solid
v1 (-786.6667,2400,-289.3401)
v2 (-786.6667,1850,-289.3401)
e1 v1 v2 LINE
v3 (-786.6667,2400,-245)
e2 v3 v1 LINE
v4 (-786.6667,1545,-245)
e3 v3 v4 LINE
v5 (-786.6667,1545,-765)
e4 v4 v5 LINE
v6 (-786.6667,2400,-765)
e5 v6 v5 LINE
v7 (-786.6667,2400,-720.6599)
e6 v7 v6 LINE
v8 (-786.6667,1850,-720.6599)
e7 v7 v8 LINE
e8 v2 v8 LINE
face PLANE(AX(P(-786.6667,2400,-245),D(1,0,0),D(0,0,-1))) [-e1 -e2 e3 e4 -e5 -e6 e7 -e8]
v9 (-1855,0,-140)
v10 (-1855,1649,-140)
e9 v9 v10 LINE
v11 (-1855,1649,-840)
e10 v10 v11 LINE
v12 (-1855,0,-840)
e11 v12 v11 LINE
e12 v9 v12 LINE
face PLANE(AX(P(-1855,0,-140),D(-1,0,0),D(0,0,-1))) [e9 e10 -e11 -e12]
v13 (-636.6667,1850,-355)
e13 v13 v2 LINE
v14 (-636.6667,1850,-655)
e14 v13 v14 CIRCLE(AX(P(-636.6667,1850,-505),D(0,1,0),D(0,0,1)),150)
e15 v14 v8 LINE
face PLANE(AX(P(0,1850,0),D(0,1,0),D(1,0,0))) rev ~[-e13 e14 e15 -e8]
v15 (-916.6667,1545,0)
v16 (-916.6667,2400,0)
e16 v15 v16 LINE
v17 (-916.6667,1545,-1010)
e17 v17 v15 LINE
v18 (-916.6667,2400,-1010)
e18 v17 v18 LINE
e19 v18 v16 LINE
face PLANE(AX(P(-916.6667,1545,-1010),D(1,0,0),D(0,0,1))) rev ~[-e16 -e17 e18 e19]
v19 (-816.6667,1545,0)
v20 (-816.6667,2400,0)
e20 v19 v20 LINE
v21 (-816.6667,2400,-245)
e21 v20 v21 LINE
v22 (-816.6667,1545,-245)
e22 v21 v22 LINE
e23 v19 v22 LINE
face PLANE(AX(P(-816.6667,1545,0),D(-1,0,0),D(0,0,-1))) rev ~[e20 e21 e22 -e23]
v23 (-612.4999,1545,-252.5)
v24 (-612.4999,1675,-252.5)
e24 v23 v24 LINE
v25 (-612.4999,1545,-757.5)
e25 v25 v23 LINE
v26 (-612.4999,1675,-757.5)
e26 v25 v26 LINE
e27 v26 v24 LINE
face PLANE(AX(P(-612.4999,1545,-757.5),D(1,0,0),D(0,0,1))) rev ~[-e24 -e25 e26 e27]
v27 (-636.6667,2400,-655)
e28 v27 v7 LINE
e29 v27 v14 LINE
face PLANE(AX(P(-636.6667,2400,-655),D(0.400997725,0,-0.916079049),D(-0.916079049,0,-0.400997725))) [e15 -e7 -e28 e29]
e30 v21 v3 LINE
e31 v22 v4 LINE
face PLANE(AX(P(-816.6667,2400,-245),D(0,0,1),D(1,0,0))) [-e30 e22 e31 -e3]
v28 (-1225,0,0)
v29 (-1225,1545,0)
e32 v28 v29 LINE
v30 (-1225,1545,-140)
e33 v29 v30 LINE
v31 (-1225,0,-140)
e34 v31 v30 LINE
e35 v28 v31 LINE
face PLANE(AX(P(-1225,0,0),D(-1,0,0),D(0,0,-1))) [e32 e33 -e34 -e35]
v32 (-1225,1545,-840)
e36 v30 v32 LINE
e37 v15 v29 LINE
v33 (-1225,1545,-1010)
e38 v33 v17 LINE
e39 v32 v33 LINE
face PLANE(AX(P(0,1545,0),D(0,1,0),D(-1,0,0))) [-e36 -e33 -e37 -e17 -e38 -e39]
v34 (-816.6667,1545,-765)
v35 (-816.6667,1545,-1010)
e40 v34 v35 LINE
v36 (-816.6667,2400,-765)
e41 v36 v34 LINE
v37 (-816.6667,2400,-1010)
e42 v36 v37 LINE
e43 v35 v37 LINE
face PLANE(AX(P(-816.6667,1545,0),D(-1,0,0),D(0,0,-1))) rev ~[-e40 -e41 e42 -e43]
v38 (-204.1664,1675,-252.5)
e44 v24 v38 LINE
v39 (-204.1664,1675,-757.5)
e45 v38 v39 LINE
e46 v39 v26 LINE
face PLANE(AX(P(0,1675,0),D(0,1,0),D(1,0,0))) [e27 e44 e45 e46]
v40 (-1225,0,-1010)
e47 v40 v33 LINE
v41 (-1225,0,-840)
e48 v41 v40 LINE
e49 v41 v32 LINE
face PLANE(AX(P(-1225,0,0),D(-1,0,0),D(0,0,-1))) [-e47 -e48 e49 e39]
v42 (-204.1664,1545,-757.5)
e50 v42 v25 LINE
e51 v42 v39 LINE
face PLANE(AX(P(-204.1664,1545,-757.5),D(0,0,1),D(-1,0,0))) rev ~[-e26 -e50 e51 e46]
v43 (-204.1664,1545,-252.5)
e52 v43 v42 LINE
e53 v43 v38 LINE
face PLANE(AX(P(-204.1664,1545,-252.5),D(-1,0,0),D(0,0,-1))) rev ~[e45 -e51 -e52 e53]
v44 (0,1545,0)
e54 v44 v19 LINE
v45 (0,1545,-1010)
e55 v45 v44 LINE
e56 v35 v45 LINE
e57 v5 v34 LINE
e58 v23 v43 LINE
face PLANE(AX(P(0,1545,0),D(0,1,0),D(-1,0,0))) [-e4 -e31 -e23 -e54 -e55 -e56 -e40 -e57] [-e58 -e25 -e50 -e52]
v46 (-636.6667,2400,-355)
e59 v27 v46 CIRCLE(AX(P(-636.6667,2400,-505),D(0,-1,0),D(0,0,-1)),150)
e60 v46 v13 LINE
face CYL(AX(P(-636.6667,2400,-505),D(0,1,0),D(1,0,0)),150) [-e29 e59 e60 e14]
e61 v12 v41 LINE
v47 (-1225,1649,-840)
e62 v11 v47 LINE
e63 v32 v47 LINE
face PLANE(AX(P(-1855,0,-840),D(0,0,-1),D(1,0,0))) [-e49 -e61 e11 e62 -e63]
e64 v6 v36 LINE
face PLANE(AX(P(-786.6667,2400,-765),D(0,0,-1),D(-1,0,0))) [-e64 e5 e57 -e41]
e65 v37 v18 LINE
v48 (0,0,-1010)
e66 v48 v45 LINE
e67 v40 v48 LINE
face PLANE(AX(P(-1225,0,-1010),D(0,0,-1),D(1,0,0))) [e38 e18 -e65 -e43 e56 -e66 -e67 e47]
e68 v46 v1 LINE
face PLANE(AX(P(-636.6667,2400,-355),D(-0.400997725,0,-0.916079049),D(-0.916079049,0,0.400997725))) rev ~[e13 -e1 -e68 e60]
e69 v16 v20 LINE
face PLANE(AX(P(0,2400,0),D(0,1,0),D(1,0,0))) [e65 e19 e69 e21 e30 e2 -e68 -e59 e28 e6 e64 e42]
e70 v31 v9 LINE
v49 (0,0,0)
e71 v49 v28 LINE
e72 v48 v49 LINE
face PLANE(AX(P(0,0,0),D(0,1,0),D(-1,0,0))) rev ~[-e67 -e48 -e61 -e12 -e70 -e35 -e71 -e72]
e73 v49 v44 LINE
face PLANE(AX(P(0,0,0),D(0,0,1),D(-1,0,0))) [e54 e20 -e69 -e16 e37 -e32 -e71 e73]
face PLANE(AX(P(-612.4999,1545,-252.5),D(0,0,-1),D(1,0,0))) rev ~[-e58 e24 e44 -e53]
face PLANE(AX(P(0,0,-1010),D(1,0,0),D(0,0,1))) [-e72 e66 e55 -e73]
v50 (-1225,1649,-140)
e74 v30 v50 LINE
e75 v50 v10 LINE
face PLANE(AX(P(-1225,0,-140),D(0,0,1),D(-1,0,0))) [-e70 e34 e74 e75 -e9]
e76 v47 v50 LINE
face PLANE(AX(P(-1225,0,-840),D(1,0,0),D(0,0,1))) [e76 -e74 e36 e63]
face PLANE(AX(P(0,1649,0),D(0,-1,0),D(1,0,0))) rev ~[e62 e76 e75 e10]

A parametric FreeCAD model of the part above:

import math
import FreeCAD as App
import Part
import Sketcher
Q = App.Units.Quantity

doc = App.newDocument("Part")
body = doc.addObject("PartDesign::Body", "Body")

sketch1 = body.newObject("Sketcher::SketchObject", "Sketch")
sketch1.AttachmentSupport = (doc.getObject("XZ_Plane"), [""])
sketch1.MapMode = "FlatFace"
sketch1.addGeometry(Part.LineSegment(App.Vector(-1225, 0, 0), App.Vector(0, 0, 0)), False)
sketch1.addGeometry(Part.LineSegment(App.Vector(0, 0, 0), App.Vector(0, -1010, 0)), False)
sketch1.addGeometry(Part.LineSegment(App.Vector(0, -1010, 0), App.Vector(-1225, -1010, 0)), False)
sketch1.addGeometry(Part.LineSegment(App.Vector(-1225, -1010, 0), App.Vector(-1225, 0, 0)), False)
sketch1.addConstraint(Sketcher.Constraint("Coincident", 0, 2, 1, 1))
sketch1.addConstraint(Sketcher.Constraint("Coincident", 1, 2, 2, 1))
sketch1.addConstraint(Sketcher.Constraint("Coincident", 2, 2, 3, 1))
sketch1.addConstraint(Sketcher.Constraint("Coincident", 3, 2, 0, 1))
sketch1.addConstraint(Sketcher.Constraint("Horizontal", 0))
sketch1.addConstraint(Sketcher.Constraint("Vertical", 1))
sketch1.addConstraint(Sketcher.Constraint("Horizontal", 2))
sketch1.addConstraint(Sketcher.Constraint("Vertical", 3))
sketch1.addConstraint(Sketcher.Constraint("Coincident", 0, 2, -1, 1))
sketch1.addConstraint(Sketcher.Constraint("DistanceX", 0, 1, 0, 2, Q("1225 mm")))
sketch1.addConstraint(Sketcher.Constraint("DistanceY", 1, 2, 1, 1, Q("1010 mm")))
pad1 = body.newObject("PartDesign::Pad", "Pad")
pad1.Profile = sketch1
pad1.Length = 1545
pad1.Reversed = True

sketch2 = body.newObject("Sketcher::SketchObject", "Sketch001")
sketch2.AttachmentSupport = (doc.getObject("XZ_Plane"), [""])
sketch2.MapMode = "FlatFace"
sketch2.addGeometry(Part.LineSegment(App.Vector(-1225, -840, 0), App.Vector(-1225, -140, 0)), False)
sketch2.addGeometry(Part.LineSegment(App.Vector(-1225, -140, 0), App.Vector(-1855, -140, 0)), False)
sketch2.addGeometry(Part.LineSegment(App.Vector(-1855, -140, 0), App.Vector(-1855, -840, 0)), False)
sketch2.addGeometry(Part.LineSegment(App.Vector(-1855, -840, 0), App.Vector(-1225, -840, 0)), False)
sketch2.addConstraint(Sketcher.Constraint("Coincident", 0, 2, 1, 1))
sketch2.addConstraint(Sketcher.Constraint("Coincident", 1, 2, 2, 1))
sketch2.addConstraint(Sketcher.Constraint("Coincident", 2, 2, 3, 1))
sketch2.addConstraint(Sketcher.Constraint("Coincident", 3, 2, 0, 1))
sketch2.addConstraint(Sketcher.Constraint("Vertical", 0))
sketch2.addConstraint(Sketcher.Constraint("Horizontal", 1))
sketch2.addConstraint(Sketcher.Constraint("Vertical", 2))
sketch2.addConstraint(Sketcher.Constraint("Horizontal", 3))
sketch2.addConstraint(Sketcher.Constraint("DistanceX", 1, 2, 1, 1, Q("630 mm")))
sketch2.addConstraint(Sketcher.Constraint("DistanceY", 0, 1, 0, 2, Q("700 mm")))
sketch2.addConstraint(Sketcher.Constraint("DistanceY", 0, 2, -1, 1, Q("140 mm")))
sketch2.addConstraint(Sketcher.Constraint("DistanceX", 0, 2, -1, 1, Q("1225 mm")))
pad2 = body.newObject("PartDesign::Pad", "Pad001")
pad2.Profile = sketch2
pad2.Length = 1649
pad2.Reversed = True

sketch3 = body.newObject("Sketcher::SketchObject", "Sketch002")
sketch3.AttachmentSupport = (doc.getObject("XZ_Plane"), [""])
sketch3.MapMode = "FlatFace"
sketch3.AttachmentOffset = App.Placement(App.Vector(0, 0, -1545), App.Rotation())
sketch3.addGeometry(Part.LineSegment(App.Vector(-917, -1010, 0), App.Vector(-917, 0, 0)), False)
sketch3.addGeometry(Part.LineSegment(App.Vector(-917, 0, 0), App.Vector(-817, 0, 0)), False)
sketch3.addGeometry(Part.LineSegment(App.Vector(-817, 0, 0), App.Vector(-817, -1010, 0)), False)
sketch3.addGeometry(Part.LineSegment(App.Vector(-817, -1010, 0), App.Vector(-917, -1010, 0)), False)
sketch3.addConstraint(Sketcher.Constraint("Coincident", 0, 2, 1, 1))
sketch3.addConstraint(Sketcher.Constraint("Coincident", 1, 2, 2, 1))
sketch3.addConstraint(Sketcher.Constraint("Coincident", 2, 2, 3, 1))
sketch3.addConstraint(Sketcher.Constraint("Coincident", 3, 2, 0, 1))
sketch3.addConstraint(Sketcher.Constraint("Vertical", 0))
sketch3.addConstraint(Sketcher.Constraint("Horizontal", 1))
sketch3.addConstraint(Sketcher.Constraint("Vertical", 2))
sketch3.addConstraint(Sketcher.Constraint("Horizontal", 3))
sketch3.addConstraint(Sketcher.Constraint("PointOnObject", 0, 2, -1))
sketch3.addConstraint(Sketcher.Constraint("DistanceX", 1, 1, 1, 2, Q("100 mm")))
sketch3.addConstraint(Sketcher.Constraint("DistanceY", 0, 1, 0, 2, Q("1010 mm")))
sketch3.addConstraint(Sketcher.Constraint("DistanceX", 0, 2, -1, 1, Q("916.6667 mm")))
pad3 = body.newObject("PartDesign::Pad", "Pad002")
pad3.Profile = sketch3
pad3.Length = 855
pad3.Reversed = True

sketch4 = body.newObject("Sketcher::SketchObject", "Sketch003")
sketch4.AttachmentSupport = (doc.getObject("XZ_Plane"), [""])
sketch4.MapMode = "FlatFace"
sketch4.AttachmentOffset = App.Placement(App.Vector(0, 0, -2400), App.Rotation())
sketch4.addGeometry(Part.LineSegment(App.Vector(-817, -765, 0), App.Vector(-817, -245, 0)), False)
sketch4.addGeometry(Part.LineSegment(App.Vector(-817, -245, 0), App.Vector(-787, -245, 0)), False)
sketch4.addGeometry(Part.LineSegment(App.Vector(-787, -245, 0), App.Vector(-787, -765, 0)), False)
sketch4.addGeometry(Part.LineSegment(App.Vector(-787, -765, 0), App.Vector(-817, -765, 0)), False)
sketch4.addConstraint(Sketcher.Constraint("Coincident", 0, 2, 1, 1))
sketch4.addConstraint(Sketcher.Constraint("Coincident", 1, 2, 2, 1))
sketch4.addConstraint(Sketcher.Constraint("Coincident", 2, 2, 3, 1))
sketch4.addConstraint(Sketcher.Constraint("Coincident", 3, 2, 0, 1))
sketch4.addConstraint(Sketcher.Constraint("Vertical", 0))
sketch4.addConstraint(Sketcher.Constraint("Horizontal", 1))
sketch4.addConstraint(Sketcher.Constraint("Vertical", 2))
sketch4.addConstraint(Sketcher.Constraint("Horizontal", 3))
sketch4.addConstraint(Sketcher.Constraint("DistanceX", 1, 1, 1, 2, Q("30 mm")))
sketch4.addConstraint(Sketcher.Constraint("DistanceY", 0, 1, 0, 2, Q("520 mm")))
sketch4.addConstraint(Sketcher.Constraint("DistanceY", 0, 2, -1, 1, Q("245 mm")))
sketch4.addConstraint(Sketcher.Constraint("DistanceX", 0, 2, -1, 1, Q("816.6667 mm")))
pad4 = body.newObject("PartDesign::Pad", "Pad003")
pad4.Profile = sketch4
pad4.Length = 855

sketch5 = body.newObject("Sketcher::SketchObject", "Sketch004")
sketch5.AttachmentSupport = (doc.getObject("XZ_Plane"), [""])
sketch5.MapMode = "FlatFace"
sketch5.AttachmentOffset = App.Placement(App.Vector(0, 0, -2400), App.Rotation())
sketch5.addGeometry(Part.ArcOfCircle(Part.Circle(App.Vector(-637, -505, 0), App.Vector(0, 0, 1), 150), math.radians(-90), math.radians(90)), False)
sketch5.addGeometry(Part.LineSegment(App.Vector(-637, -655, 0), App.Vector(-787, -721, 0)), False)
sketch5.addGeometry(Part.LineSegment(App.Vector(-787, -721, 0), App.Vector(-787, -289, 0)), False)
sketch5.addGeometry(Part.LineSegment(App.Vector(-787, -289, 0), App.Vector(-637, -355, 0)), False)
sketch5.addConstraint(Sketcher.Constraint("Coincident", 0, 1, 1, 1))
sketch5.addConstraint(Sketcher.Constraint("Coincident", 1, 2, 2, 1))
sketch5.addConstraint(Sketcher.Constraint("Coincident", 2, 2, 3, 1))
sketch5.addConstraint(Sketcher.Constraint("Coincident", 3, 2, 0, 2))
sketch5.addConstraint(Sketcher.Constraint("Vertical", 2))
sketch5.addConstraint(Sketcher.Constraint("Vertical", 0, 1, 3, 2))
sketch5.addConstraint(Sketcher.Constraint("Equal", 1, 3))
sketch5.addConstraint(Sketcher.Constraint("Radius", 0, Q("150 mm")))
sketch5.addConstraint(Sketcher.Constraint("DistanceY", 0, 3, -1, 1, Q("505 mm")))
sketch5.addConstraint(Sketcher.Constraint("DistanceX", 1, 2, 0, 1, Q("150 mm")))
sketch5.addConstraint(Sketcher.Constraint("DistanceX", 1, 2, 0, 3, Q("150 mm")))
sketch5.addConstraint(Sketcher.Constraint("Angle", 1, Q("-156.3594 deg")))
sketch5.addConstraint(Sketcher.Constraint("DistanceX", 0, 3, -1, 1, Q("636.6667 mm")))
pad5 = body.newObject("PartDesign::Pad", "Pad004")
pad5.Profile = sketch5
pad5.Length = 550

sketch6 = body.newObject("Sketcher::SketchObject", "Sketch005")
sketch6.AttachmentSupport = (doc.getObject("XZ_Plane"), [""])
sketch6.MapMode = "FlatFace"
sketch6.AttachmentOffset = App.Placement(App.Vector(0, 0, -1545), App.Rotation())
sketch6.addGeometry(Part.LineSegment(App.Vector(-612, -758, 0), App.Vector(-612, -252, 0)), False)
sketch6.addGeometry(Part.LineSegment(App.Vector(-612, -252, 0), App.Vector(-204, -252, 0)), False)
sketch6.addGeometry(Part.LineSegment(App.Vector(-204, -252, 0), App.Vector(-204, -758, 0)), False)
sketch6.addGeometry(Part.LineSegment(App.Vector(-204, -758, 0), App.Vector(-612, -758, 0)), False)
sketch6.addConstraint(Sketcher.Constraint("Coincident", 0, 2, 1, 1))
sketch6.addConstraint(Sketcher.Constraint("Coincident", 1, 2, 2, 1))
sketch6.addConstraint(Sketcher.Constraint("Coincident", 2, 2, 3, 1))
sketch6.addConstraint(Sketcher.Constraint("Coincident", 3, 2, 0, 1))
sketch6.addConstraint(Sketcher.Constraint("Vertical", 0))
sketch6.addConstraint(Sketcher.Constraint("Horizontal", 1))
sketch6.addConstraint(Sketcher.Constraint("Vertical", 2))
sketch6.addConstraint(Sketcher.Constraint("Horizontal", 3))
sketch6.addConstraint(Sketcher.Constraint("DistanceY", 0, 2, -1, 1, Q("252.5 mm")))
sketch6.addConstraint(Sketcher.Constraint("DistanceY", 0, 1, 0, 2, Q("505 mm")))
sketch6.addConstraint(Sketcher.Constraint("DistanceX", 1, 2, -1, 1, Q("204.1664 mm")))
sketch6.addConstraint(Sketcher.Constraint("DistanceX", 0, 2, -1, 1, Q("612.5 mm")))
pad6 = body.newObject("PartDesign::Pad", "Pad005")
pad6.Profile = sketch6
pad6.Length = 130
pad6.Reversed = True

doc.recompute()
